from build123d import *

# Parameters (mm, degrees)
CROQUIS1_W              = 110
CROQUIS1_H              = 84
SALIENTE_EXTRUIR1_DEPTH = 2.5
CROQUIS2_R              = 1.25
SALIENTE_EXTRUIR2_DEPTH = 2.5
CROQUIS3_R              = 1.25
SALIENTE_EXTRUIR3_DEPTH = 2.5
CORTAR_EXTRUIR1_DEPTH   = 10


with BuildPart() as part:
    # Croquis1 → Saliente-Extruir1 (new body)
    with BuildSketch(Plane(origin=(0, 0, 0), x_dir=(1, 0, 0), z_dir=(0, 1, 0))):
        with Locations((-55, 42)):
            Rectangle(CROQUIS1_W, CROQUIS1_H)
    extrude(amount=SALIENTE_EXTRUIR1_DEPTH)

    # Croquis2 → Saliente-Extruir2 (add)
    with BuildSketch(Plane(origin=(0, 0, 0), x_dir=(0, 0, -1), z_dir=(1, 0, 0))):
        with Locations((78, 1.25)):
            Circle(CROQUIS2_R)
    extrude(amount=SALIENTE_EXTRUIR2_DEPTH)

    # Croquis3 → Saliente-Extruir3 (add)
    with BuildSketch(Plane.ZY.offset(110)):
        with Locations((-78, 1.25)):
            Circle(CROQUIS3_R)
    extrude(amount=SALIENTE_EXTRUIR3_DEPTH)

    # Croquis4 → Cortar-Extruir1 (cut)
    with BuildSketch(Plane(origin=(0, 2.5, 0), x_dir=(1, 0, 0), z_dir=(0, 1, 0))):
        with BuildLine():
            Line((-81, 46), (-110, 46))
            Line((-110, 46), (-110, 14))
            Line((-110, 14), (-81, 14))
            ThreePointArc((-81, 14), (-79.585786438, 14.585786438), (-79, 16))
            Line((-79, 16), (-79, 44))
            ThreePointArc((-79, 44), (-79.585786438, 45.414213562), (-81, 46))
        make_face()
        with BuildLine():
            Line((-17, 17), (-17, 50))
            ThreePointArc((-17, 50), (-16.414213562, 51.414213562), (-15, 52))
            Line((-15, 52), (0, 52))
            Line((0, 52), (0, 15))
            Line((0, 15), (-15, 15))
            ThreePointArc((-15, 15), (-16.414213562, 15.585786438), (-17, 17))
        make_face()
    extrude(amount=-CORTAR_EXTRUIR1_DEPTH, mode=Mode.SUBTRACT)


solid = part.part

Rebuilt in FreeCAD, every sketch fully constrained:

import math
import FreeCAD as App
import Part
import Sketcher

V = App.Vector


def add_polygon(sketch, points):
    """Adds a closed chain of lines whose ends are joined by coincident constraints."""
    first, n = sketch.GeometryCount, len(points)
    for a, b in zip(points, points[1:] + points[:1]):
        sketch.addGeometry(Part.LineSegment(App.Vector(*a, 0), App.Vector(*b, 0)), False)
    for i in range(n):
        sketch.addConstraint(Sketcher.Constraint("Coincident", first + i, 2, first + (i + 1) % n, 1))

doc = App.newDocument("Part")
params = doc.addObject("Spreadsheet::Sheet", "Params")
for row, (alias, value) in enumerate([
    ("sketch1_width", "110 mm"),
    ("sketch1_height", "84 mm"),
    ("pad1_length", "2.5 mm"),
    ("sketch2_diameter", "2.5 mm"),
    ("pad2_length", "2.5 mm"),
    ("sketch3_diameter", "2.5 mm"),
    ("pad3_length", "2.5 mm"),
    ("sketch4_radius", "2 mm"),
    ("sketch4_width", "29 mm"),
    ("sketch4_width2", "15 mm"),
    ("sketch4_height", "32 mm"),
    ("sketch4_height2", "33 mm"),
    ("pocket1_length", "10 mm"),
], start=1):
    params.set(f"A{row}", alias)
    params.set(f"B{row}", "=" + value)
    params.setAlias(f"B{row}", alias)

body = doc.addObject("PartDesign::Body", "Body")

sketch1 = body.newObject("Sketcher::SketchObject", "Sketch")
sketch1.AttachmentSupport = (doc.getObject("XZ_Plane"), [""])
sketch1.MapMode = "FlatFace"
add_polygon(sketch1, [(-110, -84), (-110, 0), (0, 0), (0, -84)])
sketch1.addConstraint(Sketcher.Constraint("Vertical", 0))
sketch1.addConstraint(Sketcher.Constraint("Horizontal", 1))
sketch1.addConstraint(Sketcher.Constraint("Vertical", 2))
sketch1.addConstraint(Sketcher.Constraint("Horizontal", 3))
sketch1.addConstraint(Sketcher.Constraint("Coincident", 1, 2, -1, 1))
sketch1.addConstraint(Sketcher.Constraint("DistanceX", 1, 1, 1, 2, 110.0))
sketch1.addConstraint(Sketcher.Constraint("DistanceY", 0, 1, 0, 2, 84.0))
sketch1.setExpression("Constraints[9]", "Params.sketch1_width")
sketch1.setExpression("Constraints[10]", "Params.sketch1_height")
pad1 = body.newObject("PartDesign::Pad", "Pad")
pad1.Profile = sketch1
pad1.setExpression("Length", "Params.pad1_length")
pad1.Reversed = True

sketch2 = body.newObject("Sketcher::SketchObject", "Sketch001")
sketch2.AttachmentSupport = (doc.getObject("YZ_Plane"), [""])
sketch2.MapMode = "FlatFace"
sketch2.addGeometry(Part.Circle(V(1.2, -78, 0), V(0, 0, 1), 1.2), False)
sketch2.addConstraint(Sketcher.Constraint("Diameter", 0, 2.5))
sketch2.addConstraint(Sketcher.Constraint("DistanceY", 0, 3, -1, 1, 78.0))
sketch2.addConstraint(Sketcher.Constraint("DistanceX", -1, 1, 0, 3, 1.25))
sketch2.setExpression("Constraints[0]", "Params.sketch2_diameter")
pad2 = body.newObject("PartDesign::Pad", "Pad001")
pad2.Profile = sketch2
pad2.setExpression("Length", "Params.pad2_length")

sketch3 = body.newObject("Sketcher::SketchObject", "Sketch002")
sketch3.AttachmentSupport = (doc.getObject("YZ_Plane"), [""])
sketch3.MapMode = "FlatFace"
sketch3.AttachmentOffset = App.Placement(V(0, 0, -110), App.Rotation())
sketch3.addGeometry(Part.Circle(V(1.2, -78, 0), V(0, 0, 1), 1.2), False)
sketch3.addConstraint(Sketcher.Constraint("Diameter", 0, 2.5))
sketch3.addConstraint(Sketcher.Constraint("DistanceY", 0, 3, -1, 1, 78.0))
sketch3.addConstraint(Sketcher.Constraint("DistanceX", -1, 1, 0, 3, 1.25))
sketch3.setExpression("Constraints[0]", "Params.sketch3_diameter")
pad3 = body.newObject("PartDesign::Pad", "Pad002")
pad3.Profile = sketch3
pad3.setExpression("Length", "Params.pad3_length")
pad3.Reversed = True

sketch4 = body.newObject("Sketcher::SketchObject", "Sketch003")
sketch4.AttachmentSupport = (doc.getObject("XZ_Plane"), [""])
sketch4.MapMode = "FlatFace"
sketch4.AttachmentOffset = App.Placement(V(0, 0, -2.5), App.Rotation())
sketch4.addGeometry(Part.LineSegment(V(-81, -46, 0), V(-110, -46, 0)), False)
sketch4.addGeometry(Part.LineSegment(V(-110, -46, 0), V(-110, -14, 0)), False)
sketch4.addGeometry(Part.LineSegment(V(-110, -14, 0), V(-81, -14, 0)), False)
sketch4.addGeometry(Part.ArcOfCircle(Part.Circle(V(-81, -16, 0), V(0, 0, 1), 2), math.radians(0), math.radians(90)), False)
sketch4.addGeometry(Part.LineSegment(V(-79, -16, 0), V(-79, -44, 0)), False)
sketch4.addGeometry(Part.ArcOfCircle(Part.Circle(V(-81, -44, 0), V(0, 0, 1), 2), math.radians(-90), math.radians(0)), False)
sketch4.addGeometry(Part.LineSegment(V(-17, -50, 0), V(-17, -17, 0)), False)
sketch4.addGeometry(Part.ArcOfCircle(Part.Circle(V(-15, -17, 0), V(0, 0, 1), 2), math.radians(90), math.radians(180)), False)
sketch4.addGeometry(Part.LineSegment(V(-15, -15, 0), V(0, -15, 0)), False)
sketch4.addGeometry(Part.LineSegment(V(0, -15, 0), V(0, -52, 0)), False)
sketch4.addGeometry(Part.LineSegment(V(0, -52, 0), V(-15, -52, 0)), False)
sketch4.addGeometry(Part.ArcOfCircle(Part.Circle(V(-15, -50, 0), V(0, 0, 1), 2), math.radians(-180), math.radians(-90)), False)
sketch4.addConstraint(Sketcher.Constraint("Coincident", 0, 2, 1, 1))
sketch4.addConstraint(Sketcher.Constraint("Coincident", 1, 2, 2, 1))
sketch4.addConstraint(Sketcher.Constraint("Tangent", 2, 2, 3, 2))
sketch4.addConstraint(Sketcher.Constraint("Tangent", 3, 1, 4, 1))
sketch4.addConstraint(Sketcher.Constraint("Tangent", 4, 2, 5, 2))
sketch4.addConstraint(Sketcher.Constraint("Tangent", 5, 1, 0, 1))
sketch4.addConstraint(Sketcher.Constraint("Tangent", 6, 2, 7, 2))
sketch4.addConstraint(Sketcher.Constraint("Tangent", 7, 1, 8, 1))
sketch4.addConstraint(Sketcher.Constraint("Coincident", 8, 2, 9, 1))
sketch4.addConstraint(Sketcher.Constraint("Coincident", 9, 2, 10, 1))
sketch4.addConstraint(Sketcher.Constraint("Tangent", 10, 2, 11, 2))
sketch4.addConstraint(Sketcher.Constraint("Tangent", 11, 1, 6, 1))
sketch4.addConstraint(Sketcher.Constraint("Horizontal", 0))
sketch4.addConstraint(Sketcher.Constraint("Vertical", 1))
sketch4.addConstraint(Sketcher.Constraint("Horizontal", 2))
sketch4.addConstraint(Sketcher.Constraint("Vertical", 4))
sketch4.addConstraint(Sketcher.Constraint("Vertical", 6))
sketch4.addConstraint(Sketcher.Constraint("Horizontal", 8))
sketch4.addConstraint(Sketcher.Constraint("Vertical", 9))
sketch4.addConstraint(Sketcher.Constraint("Horizontal", 10))
sketch4.addConstraint(Sketcher.Constraint("Equal", 3, 5))
sketch4.addConstraint(Sketcher.Constraint("Equal", 5, 7))
sketch4.addConstraint(Sketcher.Constraint("Equal", 7, 11))
sketch4.addConstraint(Sketcher.Constraint("PointOnObject", 8, 2, -2))
sketch4.addConstraint(Sketcher.Constraint("Radius", 3, 2.0))
sketch4.addConstraint(Sketcher.Constraint("DistanceX", 0, 2, 0, 1, 29.0))
sketch4.addConstraint(Sketcher.Constraint("DistanceX", 8, 1, 8, 2, 15.0))
sketch4.addConstraint(Sketcher.Constraint("DistanceY", 1, 1, 1, 2, 32.0))
sketch4.addConstraint(Sketcher.Constraint("DistanceY", 6, 1, 6, 2, 33.0))
sketch4.addConstraint(Sketcher.Constraint("DistanceX", 3, 3, -1, 1, 81.0))
sketch4.addConstraint(Sketcher.Constraint("DistanceY", 3, 3, -1, 1, 16.0))
sketch4.addConstraint(Sketcher.Constraint("DistanceY", 7, 3, -1, 1, 17.0))
sketch4.setExpression("Constraints[24]", "Params.sketch4_radius")
sketch4.setExpression("Constraints[25]", "Params.sketch4_width")
sketch4.setExpression("Constraints[26]", "Params.sketch4_width2")
sketch4.setExpression("Constraints[27]", "Params.sketch4_height")
sketch4.setExpression("Constraints[28]", "Params.sketch4_height2")
pocket1 = body.newObject("PartDesign::Pocket", "Pocket")
pocket1.Profile = sketch4
pocket1.setExpression("Length", "Params.pocket1_length")
pocket1.Reversed = True

doc.recompute()
